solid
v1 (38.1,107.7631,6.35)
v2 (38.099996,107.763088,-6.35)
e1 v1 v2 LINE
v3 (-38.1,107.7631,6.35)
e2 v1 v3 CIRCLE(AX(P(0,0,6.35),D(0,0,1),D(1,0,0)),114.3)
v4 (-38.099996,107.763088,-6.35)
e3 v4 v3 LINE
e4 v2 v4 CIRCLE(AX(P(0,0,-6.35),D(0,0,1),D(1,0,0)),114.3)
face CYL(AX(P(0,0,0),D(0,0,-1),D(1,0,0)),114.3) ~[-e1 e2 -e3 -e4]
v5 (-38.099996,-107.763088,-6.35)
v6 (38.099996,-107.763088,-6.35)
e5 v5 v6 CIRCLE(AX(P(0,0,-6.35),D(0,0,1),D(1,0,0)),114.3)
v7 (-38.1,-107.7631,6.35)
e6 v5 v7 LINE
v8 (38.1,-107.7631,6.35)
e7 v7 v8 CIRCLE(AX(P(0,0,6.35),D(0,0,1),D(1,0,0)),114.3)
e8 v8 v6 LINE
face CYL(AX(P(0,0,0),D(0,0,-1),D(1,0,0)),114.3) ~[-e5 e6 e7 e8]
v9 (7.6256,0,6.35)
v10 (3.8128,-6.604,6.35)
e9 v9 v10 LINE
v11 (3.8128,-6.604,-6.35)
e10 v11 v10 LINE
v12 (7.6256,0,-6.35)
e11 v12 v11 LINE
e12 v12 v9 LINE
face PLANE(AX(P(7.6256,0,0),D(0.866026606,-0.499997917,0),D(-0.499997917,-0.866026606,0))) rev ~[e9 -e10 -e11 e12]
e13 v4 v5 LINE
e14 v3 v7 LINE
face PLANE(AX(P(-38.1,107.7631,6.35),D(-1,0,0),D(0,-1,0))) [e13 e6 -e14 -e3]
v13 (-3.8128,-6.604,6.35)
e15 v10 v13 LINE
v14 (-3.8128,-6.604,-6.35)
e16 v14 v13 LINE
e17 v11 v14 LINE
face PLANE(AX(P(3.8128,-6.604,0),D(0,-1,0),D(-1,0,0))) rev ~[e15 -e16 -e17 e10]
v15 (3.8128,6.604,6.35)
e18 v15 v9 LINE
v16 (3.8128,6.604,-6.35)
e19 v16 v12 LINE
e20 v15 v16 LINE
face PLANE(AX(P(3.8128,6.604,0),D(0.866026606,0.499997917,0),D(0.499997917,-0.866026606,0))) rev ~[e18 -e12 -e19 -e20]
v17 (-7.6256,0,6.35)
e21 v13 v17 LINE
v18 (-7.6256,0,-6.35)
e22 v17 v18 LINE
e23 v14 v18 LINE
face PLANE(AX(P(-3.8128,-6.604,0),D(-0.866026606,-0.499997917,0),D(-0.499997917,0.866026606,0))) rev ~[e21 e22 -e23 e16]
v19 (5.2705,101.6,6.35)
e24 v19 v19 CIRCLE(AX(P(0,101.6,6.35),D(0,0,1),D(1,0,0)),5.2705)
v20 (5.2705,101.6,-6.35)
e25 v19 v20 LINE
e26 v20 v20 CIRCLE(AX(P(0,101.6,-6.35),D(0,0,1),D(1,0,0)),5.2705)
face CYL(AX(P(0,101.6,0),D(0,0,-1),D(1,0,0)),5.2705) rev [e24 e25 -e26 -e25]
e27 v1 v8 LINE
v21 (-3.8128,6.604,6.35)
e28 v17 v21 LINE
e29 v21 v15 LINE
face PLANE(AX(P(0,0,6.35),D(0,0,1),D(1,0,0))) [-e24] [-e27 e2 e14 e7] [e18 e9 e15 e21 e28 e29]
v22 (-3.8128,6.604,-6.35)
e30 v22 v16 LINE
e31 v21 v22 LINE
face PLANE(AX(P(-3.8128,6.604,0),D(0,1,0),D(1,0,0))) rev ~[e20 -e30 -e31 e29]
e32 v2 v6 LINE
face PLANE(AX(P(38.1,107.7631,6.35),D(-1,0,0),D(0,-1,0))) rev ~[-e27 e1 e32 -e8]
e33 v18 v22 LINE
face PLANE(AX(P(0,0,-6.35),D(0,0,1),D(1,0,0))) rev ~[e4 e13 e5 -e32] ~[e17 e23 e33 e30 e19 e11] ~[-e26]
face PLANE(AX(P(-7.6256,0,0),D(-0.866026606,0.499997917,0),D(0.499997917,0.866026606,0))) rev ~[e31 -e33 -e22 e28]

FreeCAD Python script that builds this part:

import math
import FreeCAD as App
import Part
import Sketcher
Q = App.Units.Quantity

doc = App.newDocument("Part")
body = doc.addObject("PartDesign::Body", "Body")

sketch1 = body.newObject("Sketcher::SketchObject", "Sketch")
sketch1.AttachmentSupport = (doc.getObject("XY_Plane"), [""])
sketch1.MapMode = "FlatFace"
sketch1.addGeometry([
    Part.Circle(App.Vector(0, 0, 0), App.Vector(0, 0, 1), 114.3),
    Part.LineSegment(App.Vector(3.8128, 6.604, 0), App.Vector(7.6256, 0, 0)),
    Part.LineSegment(App.Vector(7.6256, 0, 0), App.Vector(3.8128, -6.604, 0)),
    Part.LineSegment(App.Vector(3.8128, -6.604, 0), App.Vector(-3.8128, -6.604, 0)),
    Part.LineSegment(App.Vector(-3.8128, -6.604, 0), App.Vector(-7.6256, 0, 0)),
    Part.LineSegment(App.Vector(-7.6256, 0, 0), App.Vector(-3.8128, 6.604, 0)),
    Part.LineSegment(App.Vector(-3.8128, 6.604, 0), App.Vector(3.8128, 6.604, 0)),
    Part.Circle(App.Vector(0, 101.6, 0), App.Vector(0, 0, 1), 5.2705),
], False)
sketch1.addConstraint([
    Sketcher.Constraint("Coincident", 1, 2, 2, 1),
    Sketcher.Constraint("Coincident", 2, 2, 3, 1),
    Sketcher.Constraint("Coincident", 3, 2, 4, 1),
    Sketcher.Constraint("Coincident", 4, 2, 5, 1),
    Sketcher.Constraint("Coincident", 5, 2, 6, 1),
    Sketcher.Constraint("Coincident", 6, 2, 1, 1),
    Sketcher.Constraint("Horizontal", 3),
    Sketcher.Constraint("Horizontal", 6),
    Sketcher.Constraint("Coincident", 0, 3, -1, 1),
    Sketcher.Constraint("Symmetric", 1, 2, 4, 2, -1, 1),
    Sketcher.Constraint("Symmetric", 2, 2, 5, 2, -1, 1),
    Sketcher.Constraint("PointOnObject", 7, 3, -2),
    Sketcher.Constraint("PointOnObject", 1, 2, -1),
    Sketcher.Constraint("Parallel", 1, 4),
    Sketcher.Constraint("Vertical", 3, 2, 5, 2),
    Sketcher.Constraint("Diameter", 0, Q("9 in")),
    Sketcher.Constraint("Diameter", 7, Q("0.415 in")),
    Sketcher.Constraint("DistanceY", -1, 1, 7, 3, Q("4 in")),
    Sketcher.Constraint("DistanceY", 3, 2, 5, 2, Q("0.52 in")),
    Sketcher.Constraint("Angle", 1, Q("-60.0001 deg")),
    Sketcher.Constraint("DistanceX", 3, 2, 3, 1, 7.6256),
])
pad1 = body.newObject("PartDesign::Pad", "Pad")
pad1.Profile = sketch1
pad1.Length = Q("0.5 in")
pad1.Midplane = True

sketch2 = body.newObject("Sketcher::SketchObject", "Sketch001")
sketch2.AttachmentSupport = (doc.getObject("XY_Plane"), [""])
sketch2.MapMode = "FlatFace"
sketch2.AttachmentOffset = App.Placement(App.Vector(0, 0, 0.25 * 25.4), App.Rotation())
sketch2.addGeometry([
    Part.ArcOfCircle(Part.Circle(App.Vector(0, 0, 0), App.Vector(0, 0, 1), 114.3), math.radians(-70.528784), math.radians(70.528784)),
    Part.LineSegment(App.Vector(38.1, -107.7631, 0), App.Vector(38.1, 107.7631, 0)),
    Part.LineSegment(App.Vector(-38.1, -107.7631, 0), App.Vector(-38.1, 107.7631, 0)),
    Part.ArcOfCircle(Part.Circle(App.Vector(0, 0, 0), App.Vector(0, 0, 1), 114.3), math.radians(109.471216), math.radians(250.528784)),
], False)
sketch2.addConstraint([
    Sketcher.Constraint("Coincident", 0, 1, 1, 1),
    Sketcher.Constraint("Coincident", 1, 2, 0, 2),
    Sketcher.Constraint("Coincident", 2, 1, 3, 2),
    Sketcher.Constraint("Coincident", 3, 1, 2, 2),
    Sketcher.Constraint("Vertical", 1),
    Sketcher.Constraint("Vertical", 2),
    Sketcher.Constraint("Coincident", 0, 3, -1, 1),
    Sketcher.Constraint("Coincident", 3, 3, -1, 1),
    Sketcher.Constraint("Equal", 0, 3),
    Sketcher.Constraint("Horizontal", 0, 1, 2, 1),
    Sketcher.Constraint("DistanceX", -1, 1, 0, 1, Q("1.5 in")),
    Sketcher.Constraint("Radius", 0, Q("4.5 in")),
])
pocket1 = body.newObject("PartDesign::Pocket", "Pocket")
pocket1.Profile = sketch2
pocket1.Type = "ThroughAll"

doc.recompute()
